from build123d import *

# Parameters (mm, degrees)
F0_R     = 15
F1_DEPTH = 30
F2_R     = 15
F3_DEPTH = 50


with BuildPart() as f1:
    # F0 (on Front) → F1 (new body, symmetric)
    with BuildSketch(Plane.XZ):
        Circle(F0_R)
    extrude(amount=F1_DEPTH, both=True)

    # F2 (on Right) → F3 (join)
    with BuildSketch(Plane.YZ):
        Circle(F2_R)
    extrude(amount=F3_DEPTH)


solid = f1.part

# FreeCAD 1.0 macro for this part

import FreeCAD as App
import Part
import Sketcher
Q = App.Units.Quantity

doc = App.newDocument("Part")
body = doc.addObject("PartDesign::Body", "Body")

sketch1 = body.newObject("Sketcher::SketchObject", "Sketch")
sketch1.AttachmentSupport = (doc.getObject("XZ_Plane"), [""])
sketch1.MapMode = "FlatFace"
sketch1.addGeometry(Part.Circle(App.Vector(0, 0, 0), App.Vector(0, 0, 1), 15), False)
sketch1.addConstraint(Sketcher.Constraint("Coincident", 0, 3, -1, 1))
sketch1.addConstraint(Sketcher.Constraint("Diameter", 0, Q("30 mm")))
pad1 = body.newObject("PartDesign::Pad", "Pad")
pad1.Profile = sketch1
pad1.Length = 60
pad1.Midplane = True

sketch2 = body.newObject("Sketcher::SketchObject", "Sketch001")
sketch2.AttachmentSupport = (doc.getObject("YZ_Plane"), [""])
sketch2.MapMode = "FlatFace"
sketch2.addGeometry(Part.Circle(App.Vector(0, 0, 0), App.Vector(0, 0, 1), 15), False)
sketch2.addConstraint(Sketcher.Constraint("Coincident", 0, 3, -1, 1))
sketch2.addConstraint(Sketcher.Constraint("Diameter", 0, Q("30 mm")))
pad2 = body.newObject("PartDesign::Pad", "Pad001")
pad2.Profile = sketch2
pad2.Length = 50

doc.recompute()
